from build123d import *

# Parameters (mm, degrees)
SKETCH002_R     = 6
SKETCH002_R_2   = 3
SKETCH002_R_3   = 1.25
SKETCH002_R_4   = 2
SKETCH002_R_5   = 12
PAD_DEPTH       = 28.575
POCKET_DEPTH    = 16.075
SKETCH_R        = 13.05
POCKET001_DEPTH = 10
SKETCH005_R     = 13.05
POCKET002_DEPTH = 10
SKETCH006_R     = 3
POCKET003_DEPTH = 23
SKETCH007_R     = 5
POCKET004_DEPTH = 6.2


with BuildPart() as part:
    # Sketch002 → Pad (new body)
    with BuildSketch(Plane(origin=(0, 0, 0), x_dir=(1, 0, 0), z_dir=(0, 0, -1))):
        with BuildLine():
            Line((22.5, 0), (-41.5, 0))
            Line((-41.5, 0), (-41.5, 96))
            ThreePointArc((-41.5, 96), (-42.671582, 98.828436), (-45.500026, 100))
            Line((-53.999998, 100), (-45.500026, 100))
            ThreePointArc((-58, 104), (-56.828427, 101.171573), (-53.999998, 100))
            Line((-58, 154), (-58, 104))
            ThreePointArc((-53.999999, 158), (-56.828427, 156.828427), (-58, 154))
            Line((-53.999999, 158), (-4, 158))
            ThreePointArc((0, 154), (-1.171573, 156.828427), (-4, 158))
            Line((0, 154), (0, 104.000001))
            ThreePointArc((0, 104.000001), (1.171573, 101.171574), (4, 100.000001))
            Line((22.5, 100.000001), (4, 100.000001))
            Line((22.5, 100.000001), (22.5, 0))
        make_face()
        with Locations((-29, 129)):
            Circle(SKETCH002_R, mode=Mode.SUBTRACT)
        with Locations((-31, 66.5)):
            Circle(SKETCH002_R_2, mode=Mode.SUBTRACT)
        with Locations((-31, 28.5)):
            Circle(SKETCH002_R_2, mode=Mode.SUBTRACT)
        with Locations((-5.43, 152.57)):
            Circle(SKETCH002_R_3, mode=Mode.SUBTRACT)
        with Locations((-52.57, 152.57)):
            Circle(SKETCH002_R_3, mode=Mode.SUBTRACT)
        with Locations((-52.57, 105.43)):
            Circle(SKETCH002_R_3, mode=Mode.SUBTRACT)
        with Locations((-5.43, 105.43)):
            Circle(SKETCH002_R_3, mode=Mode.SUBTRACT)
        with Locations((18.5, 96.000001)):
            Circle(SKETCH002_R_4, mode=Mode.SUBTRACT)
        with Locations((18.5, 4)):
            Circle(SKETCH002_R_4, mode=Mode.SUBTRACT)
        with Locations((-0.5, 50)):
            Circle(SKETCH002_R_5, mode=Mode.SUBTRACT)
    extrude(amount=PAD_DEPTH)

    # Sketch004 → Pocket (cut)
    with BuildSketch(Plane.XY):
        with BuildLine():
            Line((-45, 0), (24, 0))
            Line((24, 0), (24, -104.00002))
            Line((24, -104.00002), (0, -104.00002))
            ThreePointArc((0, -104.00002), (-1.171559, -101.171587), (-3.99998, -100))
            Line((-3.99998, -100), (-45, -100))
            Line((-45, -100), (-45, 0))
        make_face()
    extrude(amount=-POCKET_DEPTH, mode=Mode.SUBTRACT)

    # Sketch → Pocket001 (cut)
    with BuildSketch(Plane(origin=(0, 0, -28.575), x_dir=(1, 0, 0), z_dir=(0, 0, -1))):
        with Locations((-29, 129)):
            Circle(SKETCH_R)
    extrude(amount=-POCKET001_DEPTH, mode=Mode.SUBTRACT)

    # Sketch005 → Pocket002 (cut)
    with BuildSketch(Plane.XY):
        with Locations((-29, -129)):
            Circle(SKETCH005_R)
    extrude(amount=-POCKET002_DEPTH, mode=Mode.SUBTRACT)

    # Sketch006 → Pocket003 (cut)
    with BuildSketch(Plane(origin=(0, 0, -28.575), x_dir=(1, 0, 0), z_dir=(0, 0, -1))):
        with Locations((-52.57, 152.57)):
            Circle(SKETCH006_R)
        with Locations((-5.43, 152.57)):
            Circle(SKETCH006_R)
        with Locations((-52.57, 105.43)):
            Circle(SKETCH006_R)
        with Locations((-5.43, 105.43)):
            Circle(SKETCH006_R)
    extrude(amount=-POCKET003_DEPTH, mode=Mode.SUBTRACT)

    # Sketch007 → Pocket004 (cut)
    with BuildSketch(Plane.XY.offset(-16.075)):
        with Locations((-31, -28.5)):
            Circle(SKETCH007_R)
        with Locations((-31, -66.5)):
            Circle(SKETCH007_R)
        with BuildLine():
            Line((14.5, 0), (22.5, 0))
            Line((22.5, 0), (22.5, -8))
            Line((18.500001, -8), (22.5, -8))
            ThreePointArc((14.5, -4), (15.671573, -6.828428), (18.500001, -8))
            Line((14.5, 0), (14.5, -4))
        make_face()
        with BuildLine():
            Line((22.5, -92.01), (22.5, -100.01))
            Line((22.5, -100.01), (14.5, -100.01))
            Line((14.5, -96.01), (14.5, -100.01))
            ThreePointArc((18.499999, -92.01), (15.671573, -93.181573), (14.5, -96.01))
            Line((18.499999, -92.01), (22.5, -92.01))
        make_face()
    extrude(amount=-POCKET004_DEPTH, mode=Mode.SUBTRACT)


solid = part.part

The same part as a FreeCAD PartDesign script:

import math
import FreeCAD as App
import Part
import Sketcher

doc = App.newDocument("Part")
params = doc.addObject("Spreadsheet::Sheet", "Params")
for row, (alias, value) in enumerate([
    ("sketch1_diameter", "4 mm"),
    ("sketch1_diameter2", "24 mm"),
    ("sketch1_diameter3", "6 mm"),
    ("sketch1_diameter4", "12 mm"),
    ("sketch1_radius", "4 mm"),
    ("pad1_length", "28.575 mm"),
    ("sketch2_radius", "4 mm"),
    ("sketch2_width", "69 mm"),
    ("sketch2_width2", "24 mm"),
    ("sketch2_height", "100 mm"),
    ("pocket1_length", "16.075 mm"),
    ("sketch3_diameter", "26.1 mm"),
    ("pocket2_length", "10 mm"),
    ("sketch4_diameter", "26.1 mm"),
    ("pocket3_length", "10 mm"),
    ("sketch5_diameter", "6 mm"),
    ("pocket4_length", "23 mm"),
    ("sketch6_diameter", "10 mm"),
    ("sketch6_radius", "3.999999 mm"),
    ("sketch6_width", "8 mm"),
    ("pocket5_length", "6.2 mm"),
], start=1):
    params.set(f"A{row}", alias)
    params.set(f"B{row}", "=" + value)
    params.setAlias(f"B{row}", alias)

body = doc.addObject("PartDesign::Body", "Body")

sketch1 = body.newObject("Sketcher::SketchObject", "Sketch")
sketch1.AttachmentSupport = (doc.getObject("XY_Plane"), [""])
sketch1.MapMode = "FlatFace"
sketch1.addGeometry([
    Part.LineSegment(App.Vector(-41.5, 0, 0), App.Vector(22.5, 0, 0)),
    Part.LineSegment(App.Vector(22.5, 0, 0), App.Vector(22.5, -100.000001, 0)),
    Part.LineSegment(App.Vector(22.5, -100.000001, 0), App.Vector(4, -100.000001, 0)),
    Part.ArcOfCircle(Part.Circle(App.Vector(4, -104.000001, 0), App.Vector(0, 0, 1), 4), math.radians(90.000006), math.radians(179.999994)),
    Part.LineSegment(App.Vector(0, -104.000001, 0), App.Vector(0, -154, 0)),
    Part.ArcOfCircle(Part.Circle(App.Vector(-4, -154, 0), App.Vector(0, 0, 1), 4), math.radians(-89.999994), math.radians(-0.000006)),
    Part.LineSegment(App.Vector(-4, -158, 0), App.Vector(-53.999999, -158, 0)),
    Part.ArcOfCircle(Part.Circle(App.Vector(-54, -154, 0), App.Vector(0, 0, 1), 4), math.radians(-179.999994), math.radians(-89.999992)),
    Part.LineSegment(App.Vector(-58, -154, 0), App.Vector(-58, -104, 0)),
    Part.ArcOfCircle(Part.Circle(App.Vector(-54, -104, 0), App.Vector(0, 0, 1), 4), math.radians(89.999977), math.radians(179.999994)),
    Part.LineSegment(App.Vector(-53.999998, -100, 0), App.Vector(-45.500026, -100, 0)),
    Part.ArcOfCircle(Part.Circle(App.Vector(-45.5, -96, 0), App.Vector(0, 0, 1), 4), math.radians(-90.000366), math.radians(-0.000006)),
    Part.LineSegment(App.Vector(-41.5, -96, 0), App.Vector(-41.5, 0, 0)),
    Part.Circle(App.Vector(18.5, -4, 0), App.Vector(0, 0, 1), 2),
    Part.Circle(App.Vector(-0.5, -50, 0), App.Vector(0, 0, 1), 12),
    Part.Circle(App.Vector(-31, -28.5, 0), App.Vector(0, 0, 1), 3),
    Part.Circle(App.Vector(-31, -66.5, 0), App.Vector(0, 0, 1), 3),
    Part.Circle(App.Vector(18.5, -96.000001, 0), App.Vector(0, 0, 1), 2),
    Part.Circle(App.Vector(-5.43, -105.43, 0), App.Vector(0, 0, 1), 1.25),
    Part.Circle(App.Vector(-5.43, -152.57, 0), App.Vector(0, 0, 1), 1.25),
    Part.Circle(App.Vector(-52.57, -105.43, 0), App.Vector(0, 0, 1), 1.25),
    Part.Circle(App.Vector(-29, -129, 0), App.Vector(0, 0, 1), 6),
    Part.Circle(App.Vector(-52.57, -152.57, 0), App.Vector(0, 0, 1), 1.25),
], False)
sketch1.addConstraint([
    Sketcher.Constraint("Coincident", 0, 2, 1, 1),
    Sketcher.Constraint("Coincident", 1, 2, 2, 1),
    Sketcher.Constraint("Tangent", 2, 2, 3, 1),
    Sketcher.Constraint("Tangent", 3, 2, 4, 1),
    Sketcher.Constraint("Tangent", 4, 2, 5, 2),
    Sketcher.Constraint("Tangent", 5, 1, 6, 1),
    Sketcher.Constraint("Tangent", 6, 2, 7, 2),
    Sketcher.Constraint("Tangent", 7, 1, 8, 1),
    Sketcher.Constraint("Tangent", 8, 2, 9, 2),
    Sketcher.Constraint("Tangent", 9, 1, 10, 1),
    Sketcher.Constraint("Coincident", 10, 2, 11, 1),
    Sketcher.Constraint("Tangent", 11, 2, 12, 1),
    Sketcher.Constraint("Coincident", 12, 2, 0, 1),
    Sketcher.Constraint("Horizontal", 0),
    Sketcher.Constraint("Vertical", 1),
    Sketcher.Constraint("Horizontal", 2),
    Sketcher.Constraint("Vertical", 4),
    Sketcher.Constraint("Horizontal", 6),
    Sketcher.Constraint("Vertical", 8),
    Sketcher.Constraint("Horizontal", 10),
    Sketcher.Constraint("Vertical", 12),
    Sketcher.Constraint("Equal", 3, 5),
    Sketcher.Constraint("Equal", 5, 7),
    Sketcher.Constraint("Equal", 7, 9),
    Sketcher.Constraint("Equal", 9, 11),
    Sketcher.Constraint("Equal", 15, 16),
    Sketcher.Constraint("Equal", 13, 17),
    Sketcher.Constraint("Equal", 18, 19),
    Sketcher.Constraint("Equal", 19, 20),
    Sketcher.Constraint("Equal", 20, 22),
    Sketcher.Constraint("PointOnObject", 0, 2, -1),
    Sketcher.Constraint("PointOnObject", 3, 2, -2),
    Sketcher.Constraint("Horizontal", 3, 3, 9, 3),
    Sketcher.Constraint("Horizontal", 11, 3, 17, 3),
    Sketcher.Constraint("Horizontal", 18, 3, 20, 3),
    Sketcher.Constraint("Horizontal", 19, 3, 22, 3),
    Sketcher.Constraint("Vertical", 15, 3, 16, 3),
    Sketcher.Constraint("Vertical", 13, 3, 17, 3),
    Sketcher.Constraint("Vertical", 18, 3, 19, 3),
    Sketcher.Constraint("Vertical", 20, 3, 22, 3),
    Sketcher.Constraint("Equal", 6, 4),
    Sketcher.Constraint("Diameter", 13, 4.0),
    Sketcher.Constraint("Diameter", 14, 24.0),
    Sketcher.Constraint("Diameter", 15, 6.0),
    Sketcher.Constraint("Diameter", 21, 12.0),
    Sketcher.Constraint("Radius", 3, 4.0),
    Sketcher.Constraint("Diameter", 18, 2.5),
    Sketcher.Constraint("DistanceX", 0, 1, 0, 2, 64.0),
    Sketcher.Constraint("DistanceX", 6, 2, 6, 1, 49.999999),
    Sketcher.Constraint("DistanceY", 1, 2, 1, 1, 100.000001),
    Sketcher.Constraint("DistanceX", 2, 2, 2, 1, 18.5),
    Sketcher.Constraint("DistanceY", 13, 3, -1, 1, 4.0),
    Sketcher.Constraint("DistanceY", 14, 3, -1, 1, 50.0),
    Sketcher.Constraint("DistanceX", 15, 3, -1, 1, 31.0),
    Sketcher.Constraint("DistanceX", 21, 3, -1, 1, 29.0),
    Sketcher.Constraint("DistanceY", 21, 3, -1, 1, 129.0),
    Sketcher.Constraint("DistanceX", 11, 3, 13, 3, 64.0),
    Sketcher.Constraint("DistanceX", 14, 3, 13, 3, 19.0),
    Sketcher.Constraint("DistanceY", 16, 3, 15, 3, 38.0),
    Sketcher.Constraint("DistanceY", 15, 3, -1, 1, 28.5),
    Sketcher.Constraint("DistanceX", 18, 3, -1, 1, 5.43),
    Sketcher.Constraint("DistanceY", 18, 3, -1, 1, 105.43),
    Sketcher.Constraint("DistanceY", 19, 3, -1, 1, 152.57),
    Sketcher.Constraint("DistanceX", 20, 3, -1, 1, 52.57),
    Sketcher.Constraint("DistanceX", 10, 1, 10, 2, 8.499972),
])
sketch1.setExpression("Constraints[41]", "Params.sketch1_diameter")
sketch1.setExpression("Constraints[42]", "Params.sketch1_diameter2")
sketch1.setExpression("Constraints[43]", "Params.sketch1_diameter3")
sketch1.setExpression("Constraints[44]", "Params.sketch1_diameter4")
sketch1.setExpression("Constraints[45]", "Params.sketch1_radius")
pad1 = body.newObject("PartDesign::Pad", "Pad")
pad1.Profile = sketch1
pad1.setExpression("Length", "Params.pad1_length")
pad1.Reversed = True

sketch2 = body.newObject("Sketcher::SketchObject", "Sketch001")
sketch2.AttachmentSupport = (doc.getObject("XY_Plane"), [""])
sketch2.MapMode = "FlatFace"
sketch2.addGeometry([
    Part.LineSegment(App.Vector(24, 0, 0), App.Vector(-45, 0, 0)),
    Part.LineSegment(App.Vector(-45, 0, 0), App.Vector(-45, -100, 0)),
    Part.LineSegment(App.Vector(-45, -100, 0), App.Vector(-3.99998, -100, 0)),
    Part.ArcOfCircle(Part.Circle(App.Vector(-4, -104, 0), App.Vector(0, 0, 1), 4), math.radians(-0.00028), math.radians(89.999707)),
    Part.LineSegment(App.Vector(0, -104.00002, 0), App.Vector(24, -104.00002, 0)),
    Part.LineSegment(App.Vector(24, -104.00002, 0), App.Vector(24, 0, 0)),
], False)
sketch2.addConstraint([
    Sketcher.Constraint("Coincident", 0, 2, 1, 1),
    Sketcher.Constraint("Coincident", 1, 2, 2, 1),
    Sketcher.Constraint("Coincident", 2, 2, 3, 2),
    Sketcher.Constraint("Coincident", 3, 1, 4, 1),
    Sketcher.Constraint("Coincident", 4, 2, 5, 1),
    Sketcher.Constraint("Coincident", 5, 2, 0, 1),
    Sketcher.Constraint("Horizontal", 0),
    Sketcher.Constraint("Vertical", 1),
    Sketcher.Constraint("Horizontal", 2),
    Sketcher.Constraint("Horizontal", 4),
    Sketcher.Constraint("Vertical", 5),
    Sketcher.Constraint("PointOnObject", 0, 2, -1),
    Sketcher.Constraint("PointOnObject", 3, 1, -2),
    Sketcher.Constraint("Radius", 3, 4.0),
    Sketcher.Constraint("DistanceX", 0, 2, 0, 1, 69.0),
    Sketcher.Constraint("DistanceX", 4, 1, 4, 2, 24.0),
    Sketcher.Constraint("DistanceY", 1, 2, 1, 1, 100.0),
    Sketcher.Constraint("DistanceX", 2, 1, 2, 2, 41.00002),
    Sketcher.Constraint("DistanceY", 5, 1, 5, 2, 104.00002),
])
sketch2.setExpression("Constraints[13]", "Params.sketch2_radius")
sketch2.setExpression("Constraints[14]", "Params.sketch2_width")
sketch2.setExpression("Constraints[15]", "Params.sketch2_width2")
sketch2.setExpression("Constraints[16]", "Params.sketch2_height")
pocket1 = body.newObject("PartDesign::Pocket", "Pocket")
pocket1.Profile = sketch2
pocket1.setExpression("Length", "Params.pocket1_length")

sketch3 = body.newObject("Sketcher::SketchObject", "Sketch002")
sketch3.AttachmentSupport = (doc.getObject("XY_Plane"), [""])
sketch3.MapMode = "FlatFace"
sketch3.AttachmentOffset = App.Placement(App.Vector(0, 0, -28.575), App.Rotation())
sketch3.addGeometry(Part.Circle(App.Vector(-29, -129, 0), App.Vector(0, 0, 1), 13.05), False)
sketch3.addConstraint([
    Sketcher.Constraint("Diameter", 0, 26.1),
    Sketcher.Constraint("DistanceX", 0, 3, -1, 1, 29.0),
    Sketcher.Constraint("DistanceY", 0, 3, -1, 1, 129.0),
])
sketch3.setExpression("Constraints[0]", "Params.sketch3_diameter")
pocket2 = body.newObject("PartDesign::Pocket", "Pocket001")
pocket2.Profile = sketch3
pocket2.setExpression("Length", "Params.pocket2_length")
pocket2.Reversed = True

sketch4 = body.newObject("Sketcher::SketchObject", "Sketch003")
sketch4.AttachmentSupport = (doc.getObject("XY_Plane"), [""])
sketch4.MapMode = "FlatFace"
sketch4.addGeometry(Part.Circle(App.Vector(-29, -129, 0), App.Vector(0, 0, 1), 13.05), False)
sketch4.addConstraint([
    Sketcher.Constraint("Diameter", 0, 26.1),
    Sketcher.Constraint("DistanceX", 0, 3, -1, 1, 29.0),
    Sketcher.Constraint("DistanceY", 0, 3, -1, 1, 129.0),
])
sketch4.setExpression("Constraints[0]", "Params.sketch4_diameter")
pocket3 = body.newObject("PartDesign::Pocket", "Pocket002")
pocket3.Profile = sketch4
pocket3.setExpression("Length", "Params.pocket3_length")

sketch5 = body.newObject("Sketcher::SketchObject", "Sketch004")
sketch5.AttachmentSupport = (doc.getObject("XY_Plane"), [""])
sketch5.MapMode = "FlatFace"
sketch5.AttachmentOffset = App.Placement(App.Vector(0, 0, -28.575), App.Rotation())
sketch5.addGeometry([
    Part.Circle(App.Vector(-52.57, -152.57, 0), App.Vector(0, 0, 1), 3),
    Part.Circle(App.Vector(-5.43, -152.57, 0), App.Vector(0, 0, 1), 3),
    Part.Circle(App.Vector(-52.57, -105.43, 0), App.Vector(0, 0, 1), 3),
    Part.Circle(App.Vector(-5.43, -105.43, 0), App.Vector(0, 0, 1), 3),
], False)
sketch5.addConstraint([
    Sketcher.Constraint("Equal", 0, 1),
    Sketcher.Constraint("Equal", 1, 2),
    Sketcher.Constraint("Equal", 2, 3),
    Sketcher.Constraint("Horizontal", 0, 3, 1, 3),
    Sketcher.Constraint("Horizontal", 2, 3, 3, 3),
    Sketcher.Constraint("Vertical", 0, 3, 2, 3),
    Sketcher.Constraint("Vertical", 1, 3, 3, 3),
    Sketcher.Constraint("Diameter", 0, 6.0),
    Sketcher.Constraint("DistanceX", 0, 3, -1, 1, 52.57),
    Sketcher.Constraint("DistanceY", 0, 3, -1, 1, 152.57),
    Sketcher.Constraint("DistanceX", 1, 3, -1, 1, 5.43),
    Sketcher.Constraint("DistanceY", 2, 3, -1, 1, 105.43),
])
sketch5.setExpression("Constraints[7]", "Params.sketch5_diameter")
pocket4 = body.newObject("PartDesign::Pocket", "Pocket003")
pocket4.Profile = sketch5
pocket4.setExpression("Length", "Params.pocket4_length")
pocket4.Reversed = True

sketch6 = body.newObject("Sketcher::SketchObject", "Sketch005")
sketch6.AttachmentSupport = (doc.getObject("XY_Plane"), [""])
sketch6.MapMode = "FlatFace"
sketch6.AttachmentOffset = App.Placement(App.Vector(0, 0, -16.075), App.Rotation())
sketch6.addGeometry([
    Part.Circle(App.Vector(-31, -28.5, 0), App.Vector(0, 0, 1), 5),
    Part.Circle(App.Vector(-31, -66.5, 0), App.Vector(0, 0, 1), 5),
    Part.LineSegment(App.Vector(22.5, 0, 0), App.Vector(14.5, 0, 0)),
    Part.LineSegment(App.Vector(14.5, 0, 0), App.Vector(14.5, -4, 0)),
    Part.ArcOfCircle(Part.Circle(App.Vector(18.499999, -4.000001, 0), App.Vector(0, 0, 1), 3.999999), math.radians(179.999982), math.radians(270.000033)),
    Part.LineSegment(App.Vector(18.500001, -8, 0), App.Vector(22.5, -8, 0)),
    Part.LineSegment(App.Vector(22.5, -8, 0), App.Vector(22.5, 0, 0)),
    Part.LineSegment(App.Vector(22.5, -100.01, 0), App.Vector(22.5, -92.01, 0)),
    Part.LineSegment(App.Vector(22.5, -92.01, 0), App.Vector(18.499999, -92.01, 0)),
    Part.ArcOfCircle(Part.Circle(App.Vector(18.5, -96.01, 0), App.Vector(0, 0, 1), 4), math.radians(90.00002), math.radians(179.999994)),
    Part.LineSegment(App.Vector(14.5, -96.01, 0), App.Vector(14.5, -100.01, 0)),
    Part.LineSegment(App.Vector(14.5, -100.01, 0), App.Vector(22.5, -100.01, 0)),
], False)
sketch6.addConstraint([
    Sketcher.Constraint("Coincident", 2, 2, 3, 1),
    Sketcher.Constraint("Tangent", 3, 2, 4, 1),
    Sketcher.Constraint("Tangent", 4, 2, 5, 1),
    Sketcher.Constraint("Coincident", 5, 2, 6, 1),
    Sketcher.Constraint("Coincident", 6, 2, 2, 1),
    Sketcher.Constraint("Coincident", 7, 2, 8, 1),
    Sketcher.Constraint("Tangent", 8, 2, 9, 1),
    Sketcher.Constraint("Tangent", 9, 2, 10, 1),
    Sketcher.Constraint("Coincident", 10, 2, 11, 1),
    Sketcher.Constraint("Coincident", 11, 2, 7, 1),
    Sketcher.Constraint("Horizontal", 2),
    Sketcher.Constraint("Vertical", 3),
    Sketcher.Constraint("Horizontal", 5),
    Sketcher.Constraint("Vertical", 6),
    Sketcher.Constraint("Vertical", 7),
    Sketcher.Constraint("Horizontal", 8),
    Sketcher.Constraint("Vertical", 10),
    Sketcher.Constraint("Horizontal", 11),
    Sketcher.Constraint("Equal", 0, 1),
    Sketcher.Constraint("Equal", 4, 9),
    Sketcher.Constraint("PointOnObject", 2, 2, -1),
    Sketcher.Constraint("Vertical", 0, 3, 1, 3),
    Sketcher.Constraint("Vertical", 4, 3, 9, 3),
    Sketcher.Constraint("Vertical", 6, 2, 7, 2),
    Sketcher.Constraint("Equal", 8, 3),
    Sketcher.Constraint("Equal", 6, 7),
    Sketcher.Constraint("Diameter", 0, 10.0),
    Sketcher.Constraint("Radius", 4, 3.999999),
    Sketcher.Constraint("DistanceX", 2, 2, 2, 1, 8.0),
    Sketcher.Constraint("DistanceX", 0, 3, -1, 1, 31.0),
    Sketcher.Constraint("DistanceY", 1, 3, 0, 3, 38.0),
    Sketcher.Constraint("DistanceY", 0, 3, -1, 1, 28.5),
    Sketcher.Constraint("DistanceX", -1, 1, 4, 3, 18.499999),
    Sketcher.Constraint("DistanceY", 9, 3, -1, 1, 96.01),
])
sketch6.setExpression("Constraints[26]", "Params.sketch6_diameter")
sketch6.setExpression("Constraints[27]", "Params.sketch6_radius")
sketch6.setExpression("Constraints[28]", "Params.sketch6_width")
pocket5 = body.newObject("PartDesign::Pocket", "Pocket004")
pocket5.Profile = sketch6
pocket5.setExpression("Length", "Params.pocket5_length")

doc.recompute()
